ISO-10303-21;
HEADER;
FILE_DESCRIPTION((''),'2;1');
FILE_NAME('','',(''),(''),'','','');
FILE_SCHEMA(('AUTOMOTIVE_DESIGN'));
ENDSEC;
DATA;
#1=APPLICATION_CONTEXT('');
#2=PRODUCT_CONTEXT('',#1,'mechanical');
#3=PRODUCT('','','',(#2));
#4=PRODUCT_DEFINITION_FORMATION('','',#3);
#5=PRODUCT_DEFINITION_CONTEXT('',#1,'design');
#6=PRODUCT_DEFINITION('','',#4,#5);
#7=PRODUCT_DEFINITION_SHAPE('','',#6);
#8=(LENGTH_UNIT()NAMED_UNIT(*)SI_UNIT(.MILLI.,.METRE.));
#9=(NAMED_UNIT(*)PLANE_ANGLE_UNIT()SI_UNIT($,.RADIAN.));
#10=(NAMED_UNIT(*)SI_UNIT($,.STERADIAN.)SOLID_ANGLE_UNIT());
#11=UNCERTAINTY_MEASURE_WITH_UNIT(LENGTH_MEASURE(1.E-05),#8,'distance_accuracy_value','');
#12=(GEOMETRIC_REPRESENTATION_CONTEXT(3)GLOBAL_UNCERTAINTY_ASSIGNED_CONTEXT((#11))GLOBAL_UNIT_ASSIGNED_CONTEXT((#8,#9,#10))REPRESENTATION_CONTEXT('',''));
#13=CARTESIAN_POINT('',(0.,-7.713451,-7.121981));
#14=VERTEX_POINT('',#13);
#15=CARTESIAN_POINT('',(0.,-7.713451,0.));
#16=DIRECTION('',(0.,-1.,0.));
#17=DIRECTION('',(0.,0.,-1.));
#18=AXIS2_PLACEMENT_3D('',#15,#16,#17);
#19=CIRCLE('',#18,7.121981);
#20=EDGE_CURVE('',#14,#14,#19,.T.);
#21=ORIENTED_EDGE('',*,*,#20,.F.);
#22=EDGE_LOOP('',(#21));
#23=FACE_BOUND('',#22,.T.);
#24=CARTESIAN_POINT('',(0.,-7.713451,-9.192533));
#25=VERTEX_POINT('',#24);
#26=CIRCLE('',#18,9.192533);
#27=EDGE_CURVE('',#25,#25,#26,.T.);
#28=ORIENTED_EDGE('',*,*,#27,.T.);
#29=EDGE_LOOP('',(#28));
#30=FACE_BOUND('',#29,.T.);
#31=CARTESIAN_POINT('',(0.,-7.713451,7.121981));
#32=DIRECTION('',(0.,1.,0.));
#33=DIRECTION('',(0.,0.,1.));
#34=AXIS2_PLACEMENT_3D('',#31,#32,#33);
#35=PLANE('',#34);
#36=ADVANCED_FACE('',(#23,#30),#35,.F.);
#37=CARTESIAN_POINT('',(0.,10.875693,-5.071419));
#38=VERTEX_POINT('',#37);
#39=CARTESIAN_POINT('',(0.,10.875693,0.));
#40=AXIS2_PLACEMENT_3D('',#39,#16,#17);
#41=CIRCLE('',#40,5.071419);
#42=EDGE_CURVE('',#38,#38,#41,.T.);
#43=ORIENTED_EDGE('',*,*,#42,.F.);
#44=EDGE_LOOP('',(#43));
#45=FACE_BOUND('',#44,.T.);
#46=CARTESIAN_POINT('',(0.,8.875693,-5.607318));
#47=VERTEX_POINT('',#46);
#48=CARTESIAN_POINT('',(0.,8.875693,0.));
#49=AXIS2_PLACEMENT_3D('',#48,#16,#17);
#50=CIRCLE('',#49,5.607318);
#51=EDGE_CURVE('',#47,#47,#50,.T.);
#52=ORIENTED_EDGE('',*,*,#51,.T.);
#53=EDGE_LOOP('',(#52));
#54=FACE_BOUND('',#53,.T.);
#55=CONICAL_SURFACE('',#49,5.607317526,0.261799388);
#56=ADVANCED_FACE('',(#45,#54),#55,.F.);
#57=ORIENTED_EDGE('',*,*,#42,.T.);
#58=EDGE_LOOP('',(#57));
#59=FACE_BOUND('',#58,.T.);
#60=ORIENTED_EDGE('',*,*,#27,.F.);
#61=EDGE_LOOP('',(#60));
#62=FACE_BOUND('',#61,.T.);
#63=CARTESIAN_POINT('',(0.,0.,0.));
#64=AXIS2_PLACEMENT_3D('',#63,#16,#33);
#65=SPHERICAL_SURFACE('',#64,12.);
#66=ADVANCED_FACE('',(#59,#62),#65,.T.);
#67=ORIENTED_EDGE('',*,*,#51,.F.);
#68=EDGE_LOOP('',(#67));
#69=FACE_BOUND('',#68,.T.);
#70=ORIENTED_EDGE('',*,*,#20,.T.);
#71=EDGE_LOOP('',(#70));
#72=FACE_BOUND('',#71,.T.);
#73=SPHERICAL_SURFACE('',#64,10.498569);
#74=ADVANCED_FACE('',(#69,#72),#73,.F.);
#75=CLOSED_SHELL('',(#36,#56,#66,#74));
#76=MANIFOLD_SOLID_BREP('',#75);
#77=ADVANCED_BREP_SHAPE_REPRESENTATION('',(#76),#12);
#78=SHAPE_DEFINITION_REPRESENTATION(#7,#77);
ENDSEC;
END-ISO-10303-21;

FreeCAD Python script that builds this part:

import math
import FreeCAD as App
import Part
import Sketcher

V = App.Vector
Q = App.Units.Quantity

doc = App.newDocument("Part")
body = doc.addObject("PartDesign::Body", "Body")

# Sketch on YZ plane
sketch1 = body.newObject("Sketcher::SketchObject", "Sketch")
sketch1.AttachmentSupport = (doc.getObject("YZ_Plane"), [""])
sketch1.MapMode = "FlatFace"
sketch1.addGeometry(Part.LineSegment(V(8.9, 5.6, 0), V(10.9, 5.1, 0)), False)
sketch1.addGeometry(Part.ArcOfCircle(Part.Circle(V(0, 0, 0), V(0, 0, 1), 12), math.radians(25), math.radians(130)), False)
sketch1.addGeometry(Part.LineSegment(V(-7.7, 9.2, 0), V(-7.7, 7.1, 0)), False)
sketch1.addGeometry(Part.ArcOfCircle(Part.Circle(V(0, 0, 0), V(0, 0, 1), 10.5), math.radians(32), math.radians(137)), False)
sketch1.addConstraint(Sketcher.Constraint("Coincident", 0, 2, 1, 1))
sketch1.addConstraint(Sketcher.Constraint("Coincident", 1, 2, 2, 1))
sketch1.addConstraint(Sketcher.Constraint("Coincident", 2, 2, 3, 2))
sketch1.addConstraint(Sketcher.Constraint("Coincident", 3, 1, 0, 1))
sketch1.addConstraint(Sketcher.Constraint("Vertical", 2))
sketch1.addConstraint(Sketcher.Constraint("Coincident", 1, 3, -1, 1))
sketch1.addConstraint(Sketcher.Constraint("Coincident", 3, 3, -1, 1))
sketch1.addConstraint(Sketcher.Constraint("Radius", 1, 12.0))
sketch1.addConstraint(Sketcher.Constraint("Angle", 0, Q("-15 deg")))
sketch1.addConstraint(Sketcher.Constraint("DistanceX", 3, 1, 0, 2, 2.0))
sketch1.addConstraint(Sketcher.Constraint("Radius", 3, 10.498569))
sketch1.addConstraint(Sketcher.Constraint("DistanceY", 2, 2, 2, 1, 2.070552))
revolution = body.newObject("PartDesign::Revolution", "Revolution")
revolution.Profile = sketch1
revolution.ReferenceAxis = (sketch1, ["H_Axis"])
revolution.Angle = 360

doc.recompute()
